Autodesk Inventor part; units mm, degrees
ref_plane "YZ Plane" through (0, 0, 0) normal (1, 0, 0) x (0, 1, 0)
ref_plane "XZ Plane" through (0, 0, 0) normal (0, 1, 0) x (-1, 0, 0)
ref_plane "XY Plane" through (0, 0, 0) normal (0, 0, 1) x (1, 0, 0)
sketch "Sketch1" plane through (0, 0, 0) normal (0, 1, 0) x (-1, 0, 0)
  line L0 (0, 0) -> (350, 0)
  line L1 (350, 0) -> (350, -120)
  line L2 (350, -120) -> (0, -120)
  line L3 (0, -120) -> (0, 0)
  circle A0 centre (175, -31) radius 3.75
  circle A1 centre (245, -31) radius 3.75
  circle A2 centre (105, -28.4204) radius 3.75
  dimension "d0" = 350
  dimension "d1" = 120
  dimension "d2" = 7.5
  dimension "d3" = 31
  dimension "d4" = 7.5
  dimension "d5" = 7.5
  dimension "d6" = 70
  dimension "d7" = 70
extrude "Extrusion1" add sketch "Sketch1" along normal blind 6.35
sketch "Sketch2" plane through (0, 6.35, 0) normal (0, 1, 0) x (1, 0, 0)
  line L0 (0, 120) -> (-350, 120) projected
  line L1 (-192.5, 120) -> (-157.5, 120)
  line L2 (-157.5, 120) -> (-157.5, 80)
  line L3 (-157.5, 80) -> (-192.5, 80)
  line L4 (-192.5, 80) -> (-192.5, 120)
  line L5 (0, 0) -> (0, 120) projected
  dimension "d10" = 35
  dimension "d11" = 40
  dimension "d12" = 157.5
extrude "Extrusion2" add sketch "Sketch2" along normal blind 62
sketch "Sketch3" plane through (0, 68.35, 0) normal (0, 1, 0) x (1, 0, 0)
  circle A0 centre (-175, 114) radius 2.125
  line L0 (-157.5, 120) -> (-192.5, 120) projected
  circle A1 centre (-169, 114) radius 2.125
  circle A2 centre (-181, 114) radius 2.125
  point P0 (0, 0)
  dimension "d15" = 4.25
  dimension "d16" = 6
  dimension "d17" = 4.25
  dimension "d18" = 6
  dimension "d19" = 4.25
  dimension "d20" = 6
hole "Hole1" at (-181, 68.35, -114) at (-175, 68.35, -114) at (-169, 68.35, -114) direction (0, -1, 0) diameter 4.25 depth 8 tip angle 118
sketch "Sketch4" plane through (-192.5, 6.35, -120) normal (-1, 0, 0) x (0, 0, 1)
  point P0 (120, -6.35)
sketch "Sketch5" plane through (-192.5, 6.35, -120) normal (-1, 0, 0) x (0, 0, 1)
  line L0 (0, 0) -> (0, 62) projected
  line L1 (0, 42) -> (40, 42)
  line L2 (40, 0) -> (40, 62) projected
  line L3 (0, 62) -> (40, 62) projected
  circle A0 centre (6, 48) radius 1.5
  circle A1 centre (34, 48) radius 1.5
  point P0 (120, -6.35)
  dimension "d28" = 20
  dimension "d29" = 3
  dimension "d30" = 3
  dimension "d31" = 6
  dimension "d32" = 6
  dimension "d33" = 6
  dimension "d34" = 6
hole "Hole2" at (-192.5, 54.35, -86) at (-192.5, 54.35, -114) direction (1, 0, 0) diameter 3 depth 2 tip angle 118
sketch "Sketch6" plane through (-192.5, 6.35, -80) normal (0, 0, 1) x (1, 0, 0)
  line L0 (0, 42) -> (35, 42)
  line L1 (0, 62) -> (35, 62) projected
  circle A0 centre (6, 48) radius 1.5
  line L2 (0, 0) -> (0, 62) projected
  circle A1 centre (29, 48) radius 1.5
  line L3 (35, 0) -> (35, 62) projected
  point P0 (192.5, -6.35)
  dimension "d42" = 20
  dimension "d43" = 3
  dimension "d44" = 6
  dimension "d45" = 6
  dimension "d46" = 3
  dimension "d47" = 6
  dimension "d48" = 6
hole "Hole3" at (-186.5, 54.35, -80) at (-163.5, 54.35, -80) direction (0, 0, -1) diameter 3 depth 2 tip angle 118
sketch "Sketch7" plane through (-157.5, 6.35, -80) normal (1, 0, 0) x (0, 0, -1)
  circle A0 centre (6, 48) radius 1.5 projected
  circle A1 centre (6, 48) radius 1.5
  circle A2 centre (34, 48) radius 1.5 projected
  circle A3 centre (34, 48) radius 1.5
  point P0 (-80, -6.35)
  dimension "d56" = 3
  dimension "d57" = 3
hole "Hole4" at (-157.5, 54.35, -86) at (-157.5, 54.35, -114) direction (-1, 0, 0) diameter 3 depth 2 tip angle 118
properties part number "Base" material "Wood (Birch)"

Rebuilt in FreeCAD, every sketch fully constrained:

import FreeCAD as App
import Part
import Sketcher

V = App.Vector
Q = App.Units.Quantity

doc = App.newDocument("Part")
body = doc.addObject("PartDesign::Body", "Body")

sketch1 = body.newObject("Sketcher::SketchObject", "Sketch")
sketch1.AttachmentSupport = (doc.getObject("XZ_Plane"), [""])
sketch1.MapMode = "FlatFace"
sketch1.addGeometry([
    Part.LineSegment(V(-350, 0, 0), V(0, 0, 0)),
    Part.LineSegment(V(0, 0, 0), V(0, -120, 0)),
    Part.LineSegment(V(0, -120, 0), V(-350, -120, 0)),
    Part.LineSegment(V(-350, -120, 0), V(-350, 0, 0)),
    Part.Circle(V(-105, -28.4204, 0), V(0, 0, 1), 3.75),
    Part.Circle(V(-175, -31, 0), V(0, 0, 1), 3.75),
    Part.Circle(V(-245, -31, 0), V(0, 0, 1), 3.75),
], False)
sketch1.addConstraint([
    Sketcher.Constraint("Coincident", 0, 2, 1, 1),
    Sketcher.Constraint("Coincident", 1, 2, 2, 1),
    Sketcher.Constraint("Coincident", 2, 2, 3, 1),
    Sketcher.Constraint("Coincident", 3, 2, 0, 1),
    Sketcher.Constraint("Horizontal", 0),
    Sketcher.Constraint("Vertical", 1),
    Sketcher.Constraint("Horizontal", 2),
    Sketcher.Constraint("Vertical", 3),
    Sketcher.Constraint("Coincident", 0, 2, -1, 1),
    Sketcher.Constraint("Equal", 4, 5),
    Sketcher.Constraint("Equal", 5, 6),
    Sketcher.Constraint("Horizontal", 5, 3, 6, 3),
    Sketcher.Constraint("Diameter", 4, Q("7.5 mm")),
    Sketcher.Constraint("DistanceX", 0, 1, 0, 2, Q("350 mm")),
    Sketcher.Constraint("DistanceY", 1, 2, 1, 1, Q("120 mm")),
    Sketcher.Constraint("DistanceY", 5, 3, -1, 1, Q("31 mm")),
    Sketcher.Constraint("DistanceX", 5, 3, 4, 3, Q("70 mm")),
    Sketcher.Constraint("DistanceX", 6, 3, 5, 3, Q("70 mm")),
    Sketcher.Constraint("DistanceX", 4, 3, -1, 1, Q("105 mm")),
    Sketcher.Constraint("DistanceY", 4, 3, -1, 1, Q("28.4204 mm")),
])
pad1 = body.newObject("PartDesign::Pad", "Pad")
pad1.Profile = sketch1
pad1.Length = 6.35
pad1.Reversed = True

sketch2 = body.newObject("Sketcher::SketchObject", "Sketch001")
sketch2.AttachmentSupport = (doc.getObject("XZ_Plane"), [""])
sketch2.MapMode = "FlatFace"
sketch2.AttachmentOffset = App.Placement(V(0, 0, -6.35), App.Rotation())
sketch2.addGeometry([
    Part.LineSegment(V(-157.5, -80, 0), V(-157.5, -120, 0)),
    Part.LineSegment(V(-157.5, -120, 0), V(-192.5, -120, 0)),
    Part.LineSegment(V(-192.5, -120, 0), V(-192.5, -80, 0)),
    Part.LineSegment(V(-192.5, -80, 0), V(-157.5, -80, 0)),
], False)
sketch2.addConstraint([
    Sketcher.Constraint("Coincident", 0, 2, 1, 1),
    Sketcher.Constraint("Coincident", 1, 2, 2, 1),
    Sketcher.Constraint("Coincident", 2, 2, 3, 1),
    Sketcher.Constraint("Coincident", 3, 2, 0, 1),
    Sketcher.Constraint("Vertical", 0),
    Sketcher.Constraint("Horizontal", 1),
    Sketcher.Constraint("Vertical", 2),
    Sketcher.Constraint("Horizontal", 3),
    Sketcher.Constraint("DistanceX", 1, 2, 1, 1, Q("35 mm")),
    Sketcher.Constraint("DistanceY", 0, 2, 0, 1, Q("40 mm")),
    Sketcher.Constraint("DistanceX", 0, 2, -1, 1, Q("157.5 mm")),
    Sketcher.Constraint("DistanceY", 0, 2, -1, 1, Q("120 mm")),
])
pad2 = body.newObject("PartDesign::Pad", "Pad001")
pad2.Profile = sketch2
pad2.Length = 62
pad2.Reversed = True

sketch3 = body.newObject("Sketcher::SketchObject", "Sketch002")
sketch3.AttachmentSupport = (doc.getObject("XZ_Plane"), [""])
sketch3.MapMode = "FlatFace"
sketch3.AttachmentOffset = App.Placement(V(0, 0, -68.35), App.Rotation())
sketch3.addGeometry([
    Part.Circle(V(-181, -114, 0), V(0, 0, 1), 2.125),
    Part.Circle(V(-175, -114, 0), V(0, 0, 1), 2.125),
    Part.Circle(V(-169, -114, 0), V(0, 0, 1), 2.125),
], False)
sketch3.addConstraint([
    Sketcher.Constraint("Equal", 0, 1),
    Sketcher.Constraint("Equal", 1, 2),
    Sketcher.Constraint("Horizontal", 0, 3, 1, 3),
    Sketcher.Constraint("Horizontal", 1, 3, 2, 3),
    Sketcher.Constraint("Diameter", 0, Q("4.25 mm")),
    Sketcher.Constraint("DistanceX", 0, 3, -1, 1, Q("181 mm")),
    Sketcher.Constraint("DistanceY", 0, 3, -1, 1, Q("114 mm")),
    Sketcher.Constraint("DistanceX", 1, 3, -1, 1, Q("175 mm")),
    Sketcher.Constraint("DistanceX", 2, 3, -1, 1, Q("169 mm")),
])
doc.recompute()
hole = body.newObject("PartDesign::Hole", "Hole")
hole.Profile = sketch3
hole.ThreadType = "None"
hole.Diameter = 4.25
hole.DepthType = "Dimension"
hole.Depth = 8
hole.DrillPoint = "Angled"
hole.DrillPointAngle = 118
hole.Reversed = True

sketch4 = body.newObject("Sketcher::SketchObject", "Sketch003")
sketch4.AttachmentSupport = (doc.getObject("YZ_Plane"), [""])
sketch4.MapMode = "FlatFace"
sketch4.AttachmentOffset = App.Placement(V(0, 0, -192.5), App.Rotation())
sketch4.addGeometry([
    Part.Circle(V(54.35, -86, 0), V(0, 0, 1), 1.5),
    Part.Circle(V(54.35, -114, 0), V(0, 0, 1), 1.5),
], False)
sketch4.addConstraint([
    Sketcher.Constraint("Equal", 0, 1),
    Sketcher.Constraint("Vertical", 0, 3, 1, 3),
    Sketcher.Constraint("Diameter", 0, Q("3 mm")),
    Sketcher.Constraint("DistanceY", 0, 3, -1, 1, Q("86 mm")),
    Sketcher.Constraint("DistanceY", 1, 3, -1, 1, Q("114 mm")),
    Sketcher.Constraint("DistanceX", -1, 1, 0, 3, Q("54.35 mm")),
])
doc.recompute()
hole2 = body.newObject("PartDesign::Hole", "Hole001")
hole2.Profile = sketch4
hole2.ThreadType = "None"
hole2.Diameter = 3
hole2.DepthType = "Dimension"
hole2.Depth = 2
hole2.DrillPoint = "Angled"
hole2.DrillPointAngle = 118
hole2.Reversed = True

sketch5 = body.newObject("Sketcher::SketchObject", "Sketch004")
sketch5.AttachmentSupport = (doc.getObject("XY_Plane"), [""])
sketch5.MapMode = "FlatFace"
sketch5.AttachmentOffset = App.Placement(V(0, 0, -80), App.Rotation())
sketch5.addGeometry([
    Part.Circle(V(-186.5, 54.35, 0), V(0, 0, 1), 1.5),
    Part.Circle(V(-163.5, 54.35, 0), V(0, 0, 1), 1.5),
], False)
sketch5.addConstraint([
    Sketcher.Constraint("Equal", 0, 1),
    Sketcher.Constraint("Horizontal", 0, 3, 1, 3),
    Sketcher.Constraint("Diameter", 0, Q("3 mm")),
    Sketcher.Constraint("DistanceX", 0, 3, 1, 3, Q("23 mm")),
    Sketcher.Constraint("DistanceX", 0, 3, -1, 1, Q("186.5 mm")),
    Sketcher.Constraint("DistanceY", -1, 1, 0, 3, Q("54.35 mm")),
])
doc.recompute()
hole3 = body.newObject("PartDesign::Hole", "Hole002")
hole3.Profile = sketch5
hole3.ThreadType = "None"
hole3.Diameter = 3
hole3.DepthType = "Dimension"
hole3.Depth = 2
hole3.DrillPoint = "Angled"
hole3.DrillPointAngle = 118

sketch6 = body.newObject("Sketcher::SketchObject", "Sketch005")
sketch6.AttachmentSupport = (doc.getObject("YZ_Plane"), [""])
sketch6.MapMode = "FlatFace"
sketch6.AttachmentOffset = App.Placement(V(0, 0, -157.5), App.Rotation())
sketch6.addGeometry([
    Part.Circle(V(54.35, -86, 0), V(0, 0, 1), 1.5),
    Part.Circle(V(54.35, -114, 0), V(0, 0, 1), 1.5),
], False)
sketch6.addConstraint([
    Sketcher.Constraint("Equal", 0, 1),
    Sketcher.Constraint("Vertical", 0, 3, 1, 3),
    Sketcher.Constraint("Diameter", 0, Q("3 mm")),
    Sketcher.Constraint("DistanceY", 0, 3, -1, 1, Q("86 mm")),
    Sketcher.Constraint("DistanceY", 1, 3, -1, 1, Q("114 mm")),
    Sketcher.Constraint("DistanceX", -1, 1, 0, 3, Q("54.35 mm")),
])
doc.recompute()
hole4 = body.newObject("PartDesign::Hole", "Hole003")
hole4.Profile = sketch6
hole4.ThreadType = "None"
hole4.Diameter = 3
hole4.DepthType = "Dimension"
hole4.Depth = 2
hole4.DrillPoint = "Angled"
hole4.DrillPointAngle = 118

doc.recompute()
